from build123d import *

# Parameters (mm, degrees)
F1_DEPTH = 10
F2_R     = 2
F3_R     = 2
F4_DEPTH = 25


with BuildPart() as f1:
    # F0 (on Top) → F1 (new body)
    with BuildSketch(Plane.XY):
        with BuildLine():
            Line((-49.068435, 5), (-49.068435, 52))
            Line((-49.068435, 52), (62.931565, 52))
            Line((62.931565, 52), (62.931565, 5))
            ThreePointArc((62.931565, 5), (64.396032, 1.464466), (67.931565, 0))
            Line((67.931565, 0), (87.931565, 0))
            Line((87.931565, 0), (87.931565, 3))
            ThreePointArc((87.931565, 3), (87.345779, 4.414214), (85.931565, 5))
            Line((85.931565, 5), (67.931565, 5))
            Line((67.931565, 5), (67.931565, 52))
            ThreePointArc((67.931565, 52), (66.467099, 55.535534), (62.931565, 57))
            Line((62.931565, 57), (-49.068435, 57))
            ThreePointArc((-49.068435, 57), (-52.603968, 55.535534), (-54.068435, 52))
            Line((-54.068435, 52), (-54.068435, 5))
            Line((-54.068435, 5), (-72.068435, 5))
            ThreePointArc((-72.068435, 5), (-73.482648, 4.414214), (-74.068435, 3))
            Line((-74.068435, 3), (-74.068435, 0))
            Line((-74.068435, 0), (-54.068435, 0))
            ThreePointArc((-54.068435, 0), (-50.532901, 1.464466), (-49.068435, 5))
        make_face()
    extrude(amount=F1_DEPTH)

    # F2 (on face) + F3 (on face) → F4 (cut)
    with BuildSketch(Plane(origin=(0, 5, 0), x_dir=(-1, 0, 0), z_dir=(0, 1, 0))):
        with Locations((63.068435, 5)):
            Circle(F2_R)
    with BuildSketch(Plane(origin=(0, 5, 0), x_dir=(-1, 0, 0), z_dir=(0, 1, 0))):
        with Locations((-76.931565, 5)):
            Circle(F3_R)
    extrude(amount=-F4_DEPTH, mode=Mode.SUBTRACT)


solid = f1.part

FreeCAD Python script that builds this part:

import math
import FreeCAD as App
import Part
import Sketcher
from FreeCAD import Vector

doc = App.newDocument("Part")
params = doc.addObject("Spreadsheet::Sheet", "Params")
for row, (alias, value) in enumerate([
    ("sketch1_radius", "5.000001 mm"),
    ("sketch1_radius2", "1.999999 mm"),
    ("sketch1_width", "112 mm"),
    ("sketch1_width2", "20 mm"),
    ("sketch1_height", "47 mm"),
    ("pad1_length", "10 mm"),
    ("sketch2_diameter", "4 mm"),
    ("pocket1_length", "25 mm"),
], start=1):
    params.set(f"A{row}", alias)
    params.set(f"B{row}", "=" + value)
    params.setAlias(f"B{row}", alias)

body = doc.addObject("PartDesign::Body", "Body")

# Sketch on XY plane
sketch1 = body.newObject("Sketcher::SketchObject", "Sketch")
sketch1.AttachmentSupport = (doc.getObject("XY_Plane"), [""])
sketch1.MapMode = "FlatFace"
sketch1.addGeometry([
    Part.LineSegment(Vector(-49.1, 5, 0), Vector(-49.1, 52, 0)),  # 0
    Part.LineSegment(Vector(-49.1, 52, 0), Vector(62.9, 52, 0)),  # 1
    Part.LineSegment(Vector(62.9, 52, 0), Vector(62.9, 5, 0)),  # 2
    Part.ArcOfCircle(Part.Circle(Vector(67.9, 5, 0), Vector(0, 0, 1), 5), math.radians(-180), math.radians(-90)),  # 3
    Part.LineSegment(Vector(67.9, 0, 0), Vector(87.9, 0, 0)),  # 4
    Part.LineSegment(Vector(87.9, 0, 0), Vector(87.9, 3, 0)),  # 5
    Part.ArcOfCircle(Part.Circle(Vector(85.9, 3, 0), Vector(0, 0, 1), 2), math.radians(0), math.radians(90)),  # 6
    Part.LineSegment(Vector(85.9, 5, 0), Vector(67.9, 5, 0)),  # 7
    Part.LineSegment(Vector(67.9, 5, 0), Vector(67.9, 52, 0)),  # 8
    Part.ArcOfCircle(Part.Circle(Vector(62.9, 52, 0), Vector(0, 0, 1), 5), math.radians(0), math.radians(90)),  # 9
    Part.LineSegment(Vector(62.9, 57, 0), Vector(-49.1, 57, 0)),  # 10
    Part.ArcOfCircle(Part.Circle(Vector(-49.1, 52, 0), Vector(0, 0, 1), 5), math.radians(90), math.radians(180)),  # 11
    Part.LineSegment(Vector(-54.1, 52, 0), Vector(-54.1, 5, 0)),  # 12
    Part.LineSegment(Vector(-54.1, 5, 0), Vector(-72.1, 5, 0)),  # 13
    Part.ArcOfCircle(Part.Circle(Vector(-72.1, 3, 0), Vector(0, 0, 1), 2), math.radians(90), math.radians(180)),  # 14
    Part.LineSegment(Vector(-74.1, 3, 0), Vector(-74.1, 0, 0)),  # 15
    Part.LineSegment(Vector(-74.1, 0, 0), Vector(-54.1, 0, 0)),  # 16
    Part.ArcOfCircle(Part.Circle(Vector(-54.1, 5, 0), Vector(0, 0, 1), 5), math.radians(-90), math.radians(0)),  # 17
], False)
sketch1.addConstraint([
    Sketcher.Constraint("Coincident", 0, 2, 1, 1),
    Sketcher.Constraint("Coincident", 1, 2, 2, 1),
    Sketcher.Constraint("Tangent", 2, 2, 3, 1),
    Sketcher.Constraint("Tangent", 3, 2, 4, 1),
    Sketcher.Constraint("Coincident", 4, 2, 5, 1),
    Sketcher.Constraint("Tangent", 5, 2, 6, 1),
    Sketcher.Constraint("Tangent", 6, 2, 7, 1),
    Sketcher.Constraint("Coincident", 7, 2, 8, 1),
    Sketcher.Constraint("Tangent", 8, 2, 9, 1),
    Sketcher.Constraint("Tangent", 9, 2, 10, 1),
    Sketcher.Constraint("Tangent", 10, 2, 11, 1),
    Sketcher.Constraint("Tangent", 11, 2, 12, 1),
    Sketcher.Constraint("Coincident", 12, 2, 13, 1),
    Sketcher.Constraint("Tangent", 13, 2, 14, 1),
    Sketcher.Constraint("Tangent", 14, 2, 15, 1),
    Sketcher.Constraint("Coincident", 15, 2, 16, 1),
    Sketcher.Constraint("Tangent", 16, 2, 17, 1),
    Sketcher.Constraint("Tangent", 17, 2, 0, 1),
    Sketcher.Constraint("Vertical", 0),
    Sketcher.Constraint("Horizontal", 1),
    Sketcher.Constraint("Vertical", 2),
    Sketcher.Constraint("Horizontal", 4),
    Sketcher.Constraint("Vertical", 5),
    Sketcher.Constraint("Horizontal", 7),
    Sketcher.Constraint("Vertical", 8),
    Sketcher.Constraint("Horizontal", 10),
    Sketcher.Constraint("Vertical", 12),
    Sketcher.Constraint("Horizontal", 13),
    Sketcher.Constraint("Vertical", 15),
    Sketcher.Constraint("Horizontal", 16),
    Sketcher.Constraint("Coincident", 0, 2, 11, 3),
    Sketcher.Constraint("Coincident", 1, 2, 9, 3),
    Sketcher.Constraint("Coincident", 7, 2, 3, 3),
    Sketcher.Constraint("Coincident", 12, 2, 17, 3),
    Sketcher.Constraint("Equal", 6, 14),
    Sketcher.Constraint("PointOnObject", 3, 2, -1),
    Sketcher.Constraint("PointOnObject", 15, 2, -1),
    Sketcher.Constraint("Equal", 7, 13),
    Sketcher.Constraint("Radius", 3, 5.000001),
    Sketcher.Constraint("Radius", 6, 1.999999),
    Sketcher.Constraint("DistanceX", 1, 1, 1, 2, 112.0),
    Sketcher.Constraint("DistanceX", 4, 1, 4, 2, 20.0),
    Sketcher.Constraint("DistanceY", 0, 1, 0, 2, 47.0),
    Sketcher.Constraint("DistanceX", -1, 1, 3, 3, 67.931566),
])
sketch1.setExpression("Constraints[38]", "Params.sketch1_radius")
sketch1.setExpression("Constraints[39]", "Params.sketch1_radius2")
sketch1.setExpression("Constraints[40]", "Params.sketch1_width")
sketch1.setExpression("Constraints[41]", "Params.sketch1_width2")
sketch1.setExpression("Constraints[42]", "Params.sketch1_height")
pad1 = body.newObject("PartDesign::Pad", "Pad")
pad1.Profile = sketch1
pad1.setExpression("Length", "Params.pad1_length")

# Sketch on XZ plane
sketch2 = body.newObject("Sketcher::SketchObject", "Sketch001")
sketch2.AttachmentSupport = (doc.getObject("XZ_Plane"), [""])
sketch2.MapMode = "FlatFace"
sketch2.AttachmentOffset = App.Placement(Vector(0, 0, -5), App.Rotation())
sketch2.addGeometry([
    Part.Circle(Vector(-63.1, 5, 0), Vector(0, 0, 1), 2),
    Part.Circle(Vector(76.9, 5, 0), Vector(0, 0, 1), 2),
], False)
sketch2.addConstraint([
    Sketcher.Constraint("Equal", 0, 1),
    Sketcher.Constraint("Horizontal", 0, 3, 1, 3),
    Sketcher.Constraint("Diameter", 0, 4.0),
    Sketcher.Constraint("DistanceY", -1, 1, 0, 3, 5.0),
    Sketcher.Constraint("DistanceX", 0, 3, 1, 3, 140.0),
    Sketcher.Constraint("DistanceX", 0, 3, -1, 1, 63.068435),
])
sketch2.setExpression("Constraints[2]", "Params.sketch2_diameter")
pocket1 = body.newObject("PartDesign::Pocket", "Pocket")
pocket1.Profile = sketch2
pocket1.setExpression("Length", "Params.pocket1_length")
pocket1.Reversed = True

doc.recompute()
